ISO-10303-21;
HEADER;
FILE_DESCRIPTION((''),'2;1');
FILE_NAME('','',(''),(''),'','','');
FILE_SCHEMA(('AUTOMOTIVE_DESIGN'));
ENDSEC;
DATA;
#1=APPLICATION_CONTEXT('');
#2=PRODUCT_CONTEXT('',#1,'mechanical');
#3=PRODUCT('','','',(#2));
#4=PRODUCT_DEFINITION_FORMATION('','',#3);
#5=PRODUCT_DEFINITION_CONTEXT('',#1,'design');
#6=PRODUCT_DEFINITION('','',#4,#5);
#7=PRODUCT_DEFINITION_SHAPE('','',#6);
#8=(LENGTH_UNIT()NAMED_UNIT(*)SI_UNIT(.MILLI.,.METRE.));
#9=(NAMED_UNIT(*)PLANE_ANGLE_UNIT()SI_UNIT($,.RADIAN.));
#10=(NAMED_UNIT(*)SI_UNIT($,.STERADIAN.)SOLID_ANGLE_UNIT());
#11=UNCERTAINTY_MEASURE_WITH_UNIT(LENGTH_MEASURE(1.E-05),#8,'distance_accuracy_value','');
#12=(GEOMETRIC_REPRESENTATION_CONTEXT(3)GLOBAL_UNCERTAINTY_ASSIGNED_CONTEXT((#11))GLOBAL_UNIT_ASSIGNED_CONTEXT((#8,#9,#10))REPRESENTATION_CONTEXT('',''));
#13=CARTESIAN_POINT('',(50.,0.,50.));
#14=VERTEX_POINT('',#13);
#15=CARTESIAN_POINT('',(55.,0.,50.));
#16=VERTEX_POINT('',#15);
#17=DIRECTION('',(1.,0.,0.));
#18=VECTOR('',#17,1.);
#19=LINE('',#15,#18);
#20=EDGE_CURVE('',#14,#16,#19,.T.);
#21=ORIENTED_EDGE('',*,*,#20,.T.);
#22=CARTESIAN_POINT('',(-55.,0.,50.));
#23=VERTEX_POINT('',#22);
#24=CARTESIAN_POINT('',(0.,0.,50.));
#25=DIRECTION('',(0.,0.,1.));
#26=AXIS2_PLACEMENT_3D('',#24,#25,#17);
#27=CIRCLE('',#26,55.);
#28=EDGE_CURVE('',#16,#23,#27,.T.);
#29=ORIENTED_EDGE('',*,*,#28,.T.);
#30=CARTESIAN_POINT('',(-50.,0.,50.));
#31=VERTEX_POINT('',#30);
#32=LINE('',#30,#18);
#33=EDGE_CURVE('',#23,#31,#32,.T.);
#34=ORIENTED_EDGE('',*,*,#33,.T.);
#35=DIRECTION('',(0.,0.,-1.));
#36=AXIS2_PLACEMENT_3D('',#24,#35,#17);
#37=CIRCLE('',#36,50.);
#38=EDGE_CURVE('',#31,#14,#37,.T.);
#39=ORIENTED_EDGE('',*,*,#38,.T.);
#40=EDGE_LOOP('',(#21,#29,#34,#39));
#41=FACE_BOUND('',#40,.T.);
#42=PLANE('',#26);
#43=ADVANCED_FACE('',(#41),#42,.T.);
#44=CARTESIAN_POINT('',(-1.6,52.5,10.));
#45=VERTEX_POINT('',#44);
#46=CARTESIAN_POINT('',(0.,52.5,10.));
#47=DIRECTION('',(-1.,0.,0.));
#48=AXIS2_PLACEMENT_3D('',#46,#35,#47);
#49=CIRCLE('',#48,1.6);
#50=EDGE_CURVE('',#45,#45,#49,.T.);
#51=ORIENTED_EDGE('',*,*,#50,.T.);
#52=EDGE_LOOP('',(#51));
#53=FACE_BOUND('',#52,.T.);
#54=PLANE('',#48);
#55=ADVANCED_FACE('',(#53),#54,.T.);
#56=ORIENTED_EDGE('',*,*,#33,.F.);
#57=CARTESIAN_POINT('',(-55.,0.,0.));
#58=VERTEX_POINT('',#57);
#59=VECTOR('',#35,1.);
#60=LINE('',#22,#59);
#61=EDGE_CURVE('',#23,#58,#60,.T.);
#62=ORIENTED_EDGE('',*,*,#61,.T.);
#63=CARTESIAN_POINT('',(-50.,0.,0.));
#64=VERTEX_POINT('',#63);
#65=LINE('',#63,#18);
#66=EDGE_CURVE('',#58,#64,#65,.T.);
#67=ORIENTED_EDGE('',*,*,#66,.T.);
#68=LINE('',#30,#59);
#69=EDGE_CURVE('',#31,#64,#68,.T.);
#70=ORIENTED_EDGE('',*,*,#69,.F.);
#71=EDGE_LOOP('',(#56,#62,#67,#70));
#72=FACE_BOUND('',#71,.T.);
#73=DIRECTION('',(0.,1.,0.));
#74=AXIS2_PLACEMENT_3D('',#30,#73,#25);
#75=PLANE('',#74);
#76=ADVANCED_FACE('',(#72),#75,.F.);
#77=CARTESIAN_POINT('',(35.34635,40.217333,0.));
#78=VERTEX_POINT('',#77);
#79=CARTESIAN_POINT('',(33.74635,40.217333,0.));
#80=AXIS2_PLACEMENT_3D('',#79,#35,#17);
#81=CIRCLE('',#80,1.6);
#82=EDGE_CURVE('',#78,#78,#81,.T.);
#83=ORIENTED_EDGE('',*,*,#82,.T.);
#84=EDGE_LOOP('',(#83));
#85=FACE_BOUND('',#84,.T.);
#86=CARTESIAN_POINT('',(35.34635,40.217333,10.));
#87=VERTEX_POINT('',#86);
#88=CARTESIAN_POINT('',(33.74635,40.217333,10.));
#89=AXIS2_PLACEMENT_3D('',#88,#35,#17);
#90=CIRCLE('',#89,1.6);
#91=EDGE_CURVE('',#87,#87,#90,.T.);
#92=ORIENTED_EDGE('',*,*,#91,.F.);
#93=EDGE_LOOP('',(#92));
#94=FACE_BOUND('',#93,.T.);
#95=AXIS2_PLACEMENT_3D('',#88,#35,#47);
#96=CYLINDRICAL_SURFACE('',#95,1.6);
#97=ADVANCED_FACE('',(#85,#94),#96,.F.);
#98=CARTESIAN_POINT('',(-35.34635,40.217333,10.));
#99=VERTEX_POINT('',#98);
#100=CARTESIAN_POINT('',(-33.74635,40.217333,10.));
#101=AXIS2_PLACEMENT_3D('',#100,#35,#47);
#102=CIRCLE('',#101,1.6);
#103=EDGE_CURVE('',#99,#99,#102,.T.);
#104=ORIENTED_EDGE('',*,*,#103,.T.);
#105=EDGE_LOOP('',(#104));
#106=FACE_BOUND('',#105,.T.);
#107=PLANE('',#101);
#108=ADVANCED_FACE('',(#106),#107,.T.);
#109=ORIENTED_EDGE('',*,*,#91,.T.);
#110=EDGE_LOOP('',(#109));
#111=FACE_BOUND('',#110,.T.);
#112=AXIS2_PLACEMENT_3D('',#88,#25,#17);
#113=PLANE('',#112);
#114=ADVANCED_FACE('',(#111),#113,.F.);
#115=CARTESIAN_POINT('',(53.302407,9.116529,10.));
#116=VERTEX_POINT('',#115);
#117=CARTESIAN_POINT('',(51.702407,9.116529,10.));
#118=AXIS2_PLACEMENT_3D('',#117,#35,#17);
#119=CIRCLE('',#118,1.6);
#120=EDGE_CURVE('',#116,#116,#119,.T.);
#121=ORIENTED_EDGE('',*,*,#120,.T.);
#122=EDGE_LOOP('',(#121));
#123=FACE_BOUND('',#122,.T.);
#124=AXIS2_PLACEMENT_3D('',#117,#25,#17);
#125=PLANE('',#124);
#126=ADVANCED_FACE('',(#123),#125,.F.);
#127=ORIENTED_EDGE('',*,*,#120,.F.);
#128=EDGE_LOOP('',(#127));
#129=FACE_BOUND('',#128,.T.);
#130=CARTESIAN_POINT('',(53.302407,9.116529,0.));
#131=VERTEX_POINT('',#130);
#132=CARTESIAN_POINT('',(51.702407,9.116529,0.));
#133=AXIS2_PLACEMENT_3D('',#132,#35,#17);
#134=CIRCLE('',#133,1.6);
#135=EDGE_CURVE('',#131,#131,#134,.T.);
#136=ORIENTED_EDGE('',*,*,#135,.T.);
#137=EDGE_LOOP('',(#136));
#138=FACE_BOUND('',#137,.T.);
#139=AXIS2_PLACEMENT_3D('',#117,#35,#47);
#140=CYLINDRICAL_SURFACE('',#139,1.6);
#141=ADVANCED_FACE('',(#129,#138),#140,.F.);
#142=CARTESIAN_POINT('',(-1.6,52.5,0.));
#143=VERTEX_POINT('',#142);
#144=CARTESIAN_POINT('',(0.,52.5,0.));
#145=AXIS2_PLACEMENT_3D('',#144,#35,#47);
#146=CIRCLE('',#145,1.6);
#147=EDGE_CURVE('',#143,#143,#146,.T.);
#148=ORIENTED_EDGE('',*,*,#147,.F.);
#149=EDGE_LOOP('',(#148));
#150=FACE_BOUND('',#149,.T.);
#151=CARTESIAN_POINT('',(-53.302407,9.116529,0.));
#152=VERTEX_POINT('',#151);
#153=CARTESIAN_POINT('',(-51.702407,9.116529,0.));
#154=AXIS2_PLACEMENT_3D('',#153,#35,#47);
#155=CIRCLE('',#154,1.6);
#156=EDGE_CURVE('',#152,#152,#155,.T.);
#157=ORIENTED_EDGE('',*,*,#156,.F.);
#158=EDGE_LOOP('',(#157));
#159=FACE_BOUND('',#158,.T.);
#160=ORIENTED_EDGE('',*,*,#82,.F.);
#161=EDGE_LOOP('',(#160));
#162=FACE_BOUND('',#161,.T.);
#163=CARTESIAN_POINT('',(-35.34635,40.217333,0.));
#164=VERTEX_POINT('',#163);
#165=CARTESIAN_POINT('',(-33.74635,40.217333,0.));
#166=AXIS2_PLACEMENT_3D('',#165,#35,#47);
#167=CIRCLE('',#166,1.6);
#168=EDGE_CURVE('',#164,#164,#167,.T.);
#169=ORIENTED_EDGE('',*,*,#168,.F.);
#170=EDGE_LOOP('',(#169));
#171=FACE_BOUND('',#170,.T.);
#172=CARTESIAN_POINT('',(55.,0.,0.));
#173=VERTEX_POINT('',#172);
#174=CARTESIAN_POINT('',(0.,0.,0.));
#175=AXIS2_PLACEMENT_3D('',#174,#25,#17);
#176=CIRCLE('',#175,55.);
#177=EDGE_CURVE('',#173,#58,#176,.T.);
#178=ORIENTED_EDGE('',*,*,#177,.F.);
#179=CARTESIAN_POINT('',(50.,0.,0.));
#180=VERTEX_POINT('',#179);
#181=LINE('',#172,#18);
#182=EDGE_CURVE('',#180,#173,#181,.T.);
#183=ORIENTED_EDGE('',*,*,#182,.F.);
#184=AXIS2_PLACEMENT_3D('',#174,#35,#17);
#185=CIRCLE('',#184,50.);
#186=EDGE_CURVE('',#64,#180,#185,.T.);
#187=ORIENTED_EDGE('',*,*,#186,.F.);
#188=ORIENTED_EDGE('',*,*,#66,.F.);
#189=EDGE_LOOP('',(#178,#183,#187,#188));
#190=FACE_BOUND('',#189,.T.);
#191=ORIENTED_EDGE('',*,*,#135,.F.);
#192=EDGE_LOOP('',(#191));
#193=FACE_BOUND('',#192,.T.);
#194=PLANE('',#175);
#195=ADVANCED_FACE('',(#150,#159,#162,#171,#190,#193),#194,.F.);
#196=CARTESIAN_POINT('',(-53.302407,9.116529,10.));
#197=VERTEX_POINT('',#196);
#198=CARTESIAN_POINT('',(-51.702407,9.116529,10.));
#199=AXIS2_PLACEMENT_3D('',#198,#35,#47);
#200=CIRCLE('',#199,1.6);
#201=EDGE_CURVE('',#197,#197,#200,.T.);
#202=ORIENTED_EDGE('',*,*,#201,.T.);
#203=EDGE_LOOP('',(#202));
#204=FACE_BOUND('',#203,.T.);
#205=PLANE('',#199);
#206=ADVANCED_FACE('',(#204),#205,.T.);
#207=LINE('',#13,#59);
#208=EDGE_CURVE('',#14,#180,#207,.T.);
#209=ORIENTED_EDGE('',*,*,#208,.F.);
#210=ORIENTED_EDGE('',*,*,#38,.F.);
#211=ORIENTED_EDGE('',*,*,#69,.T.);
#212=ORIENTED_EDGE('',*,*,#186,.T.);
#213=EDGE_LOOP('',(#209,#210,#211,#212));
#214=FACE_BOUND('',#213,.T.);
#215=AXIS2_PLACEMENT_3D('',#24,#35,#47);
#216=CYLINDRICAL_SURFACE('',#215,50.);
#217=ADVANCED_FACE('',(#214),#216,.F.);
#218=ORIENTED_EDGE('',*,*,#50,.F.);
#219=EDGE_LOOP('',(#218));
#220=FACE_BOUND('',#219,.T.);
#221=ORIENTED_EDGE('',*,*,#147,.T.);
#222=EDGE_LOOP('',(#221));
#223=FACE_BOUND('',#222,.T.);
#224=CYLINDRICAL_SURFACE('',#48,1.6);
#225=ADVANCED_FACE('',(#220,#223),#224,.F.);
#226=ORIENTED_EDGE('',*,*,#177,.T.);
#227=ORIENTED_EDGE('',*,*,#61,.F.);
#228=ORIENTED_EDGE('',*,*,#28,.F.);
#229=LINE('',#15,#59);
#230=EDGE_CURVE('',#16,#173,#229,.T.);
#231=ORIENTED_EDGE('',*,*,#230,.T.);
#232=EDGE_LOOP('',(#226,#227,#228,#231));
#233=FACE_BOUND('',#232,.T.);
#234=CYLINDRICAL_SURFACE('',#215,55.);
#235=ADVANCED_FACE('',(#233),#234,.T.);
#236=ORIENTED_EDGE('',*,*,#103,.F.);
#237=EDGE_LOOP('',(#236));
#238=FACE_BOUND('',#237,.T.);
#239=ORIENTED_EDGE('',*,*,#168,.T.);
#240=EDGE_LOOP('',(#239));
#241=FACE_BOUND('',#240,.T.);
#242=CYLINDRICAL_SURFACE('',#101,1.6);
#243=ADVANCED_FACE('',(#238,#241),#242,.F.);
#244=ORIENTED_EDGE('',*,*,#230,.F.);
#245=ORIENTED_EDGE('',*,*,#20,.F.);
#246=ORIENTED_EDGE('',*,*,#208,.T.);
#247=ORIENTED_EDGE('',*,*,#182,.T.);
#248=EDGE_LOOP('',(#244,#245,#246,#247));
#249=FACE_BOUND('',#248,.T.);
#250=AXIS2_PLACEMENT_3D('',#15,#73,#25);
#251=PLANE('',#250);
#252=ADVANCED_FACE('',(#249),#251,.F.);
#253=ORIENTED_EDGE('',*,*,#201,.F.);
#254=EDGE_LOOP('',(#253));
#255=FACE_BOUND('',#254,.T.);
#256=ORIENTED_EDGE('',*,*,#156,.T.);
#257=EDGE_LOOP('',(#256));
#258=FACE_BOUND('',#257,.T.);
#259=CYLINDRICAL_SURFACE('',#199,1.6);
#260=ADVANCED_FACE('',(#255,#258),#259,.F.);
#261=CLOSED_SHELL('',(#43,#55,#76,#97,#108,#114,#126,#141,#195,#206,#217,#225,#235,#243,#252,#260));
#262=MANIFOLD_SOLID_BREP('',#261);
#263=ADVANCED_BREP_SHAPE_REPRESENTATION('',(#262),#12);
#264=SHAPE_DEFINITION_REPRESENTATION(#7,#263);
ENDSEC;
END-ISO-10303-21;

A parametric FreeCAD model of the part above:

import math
import FreeCAD as App
import Part
import Sketcher

V = App.Vector

doc = App.newDocument("Part")
params = doc.addObject("Spreadsheet::Sheet", "Params")
for row, (alias, value) in enumerate([
    ("sketch1_radius", "55 mm"),
    ("sketch1_radius2", "50 mm"),
    ("pad1_length", "50 mm"),
    ("sketch2_diameter", "3.2 mm"),
    ("pocket1_length", "10 mm"),
], start=1):
    params.set(f"A{row}", alias)
    params.set(f"B{row}", "=" + value)
    params.setAlias(f"B{row}", alias)

body = doc.addObject("PartDesign::Body", "Body")

# Sketch on XY plane
sketch1 = body.newObject("Sketcher::SketchObject", "Sketch")
sketch1.AttachmentSupport = (doc.getObject("XY_Plane"), [""])
sketch1.MapMode = "FlatFace"
sketch1.addGeometry([
    Part.LineSegment(V(50, 0, 0), V(55, 0, 0)),
    Part.ArcOfCircle(Part.Circle(V(0, 0, 0), V(0, 0, 1), 55), math.radians(0), math.radians(180)),
    Part.LineSegment(V(-55, 0, 0), V(-50, 0, 0)),
    Part.ArcOfCircle(Part.Circle(V(0, 0, 0), V(0, 0, 1), 50), math.radians(0), math.radians(180)),
], False)
sketch1.addConstraint([
    Sketcher.Constraint("Coincident", 0, 2, 1, 1),
    Sketcher.Constraint("Coincident", 1, 2, 2, 1),
    Sketcher.Constraint("Coincident", 2, 2, 3, 2),
    Sketcher.Constraint("Coincident", 3, 1, 0, 1),
    Sketcher.Constraint("Horizontal", 0),
    Sketcher.Constraint("Horizontal", 2),
    Sketcher.Constraint("Coincident", 1, 3, -1, 1),
    Sketcher.Constraint("Coincident", 3, 3, -1, 1),
    Sketcher.Constraint("PointOnObject", 0, 2, -1),
    Sketcher.Constraint("PointOnObject", 1, 2, -1),
    Sketcher.Constraint("Radius", 1, 55.0),
    Sketcher.Constraint("Radius", 3, 50.0),
])
sketch1.setExpression("Constraints[10]", "Params.sketch1_radius")
sketch1.setExpression("Constraints[11]", "Params.sketch1_radius2")
pad1 = body.newObject("PartDesign::Pad", "Pad")
pad1.Profile = sketch1
pad1.setExpression("Length", "Params.pad1_length")

# Sketch on XY plane
sketch2 = body.newObject("Sketcher::SketchObject", "Sketch001")
sketch2.AttachmentSupport = (doc.getObject("XY_Plane"), [""])
sketch2.MapMode = "FlatFace"
sketch2.addGeometry([
    Part.Circle(V(0, 52.5, 0), V(0, 0, 1), 1.6),  # 0
    Part.Circle(V(-33.7, 40.2, 0), V(0, 0, 1), 1.6),  # 1
    Part.Circle(V(-51.7, 9.1, 0), V(0, 0, 1), 1.6),  # 2
    Part.Circle(V(51.7, 9.1, 0), V(0, 0, 1), 1.6),  # 3
    Part.Circle(V(33.7, 40.2, 0), V(0, 0, 1), 1.6),  # 4
], False)
sketch2.addConstraint([
    Sketcher.Constraint("Equal", 0, 1),
    Sketcher.Constraint("Equal", 1, 2),
    Sketcher.Constraint("Equal", 2, 3),
    Sketcher.Constraint("Equal", 3, 4),
    Sketcher.Constraint("Symmetric", 2, 3, 3, 3, -2),
    Sketcher.Constraint("Symmetric", 1, 3, 4, 3, -2),
    Sketcher.Constraint("PointOnObject", 0, 3, -2),
    Sketcher.Constraint("Diameter", 0, 3.2),
    Sketcher.Constraint("DistanceY", -1, 1, 0, 3, 52.5),
    Sketcher.Constraint("DistanceX", 1, 3, 4, 3, 67.492699),
    Sketcher.Constraint("DistanceY", -1, 1, 2, 3, 9.116529),
    Sketcher.Constraint("DistanceY", -1, 1, 1, 3, 40.217333),
    Sketcher.Constraint("DistanceX", 2, 3, -1, 1, 51.702407),
])
sketch2.setExpression("Constraints[7]", "Params.sketch2_diameter")
pocket1 = body.newObject("PartDesign::Pocket", "Pocket")
pocket1.Profile = sketch2
pocket1.setExpression("Length", "Params.pocket1_length")
pocket1.Reversed = True

doc.recompute()
